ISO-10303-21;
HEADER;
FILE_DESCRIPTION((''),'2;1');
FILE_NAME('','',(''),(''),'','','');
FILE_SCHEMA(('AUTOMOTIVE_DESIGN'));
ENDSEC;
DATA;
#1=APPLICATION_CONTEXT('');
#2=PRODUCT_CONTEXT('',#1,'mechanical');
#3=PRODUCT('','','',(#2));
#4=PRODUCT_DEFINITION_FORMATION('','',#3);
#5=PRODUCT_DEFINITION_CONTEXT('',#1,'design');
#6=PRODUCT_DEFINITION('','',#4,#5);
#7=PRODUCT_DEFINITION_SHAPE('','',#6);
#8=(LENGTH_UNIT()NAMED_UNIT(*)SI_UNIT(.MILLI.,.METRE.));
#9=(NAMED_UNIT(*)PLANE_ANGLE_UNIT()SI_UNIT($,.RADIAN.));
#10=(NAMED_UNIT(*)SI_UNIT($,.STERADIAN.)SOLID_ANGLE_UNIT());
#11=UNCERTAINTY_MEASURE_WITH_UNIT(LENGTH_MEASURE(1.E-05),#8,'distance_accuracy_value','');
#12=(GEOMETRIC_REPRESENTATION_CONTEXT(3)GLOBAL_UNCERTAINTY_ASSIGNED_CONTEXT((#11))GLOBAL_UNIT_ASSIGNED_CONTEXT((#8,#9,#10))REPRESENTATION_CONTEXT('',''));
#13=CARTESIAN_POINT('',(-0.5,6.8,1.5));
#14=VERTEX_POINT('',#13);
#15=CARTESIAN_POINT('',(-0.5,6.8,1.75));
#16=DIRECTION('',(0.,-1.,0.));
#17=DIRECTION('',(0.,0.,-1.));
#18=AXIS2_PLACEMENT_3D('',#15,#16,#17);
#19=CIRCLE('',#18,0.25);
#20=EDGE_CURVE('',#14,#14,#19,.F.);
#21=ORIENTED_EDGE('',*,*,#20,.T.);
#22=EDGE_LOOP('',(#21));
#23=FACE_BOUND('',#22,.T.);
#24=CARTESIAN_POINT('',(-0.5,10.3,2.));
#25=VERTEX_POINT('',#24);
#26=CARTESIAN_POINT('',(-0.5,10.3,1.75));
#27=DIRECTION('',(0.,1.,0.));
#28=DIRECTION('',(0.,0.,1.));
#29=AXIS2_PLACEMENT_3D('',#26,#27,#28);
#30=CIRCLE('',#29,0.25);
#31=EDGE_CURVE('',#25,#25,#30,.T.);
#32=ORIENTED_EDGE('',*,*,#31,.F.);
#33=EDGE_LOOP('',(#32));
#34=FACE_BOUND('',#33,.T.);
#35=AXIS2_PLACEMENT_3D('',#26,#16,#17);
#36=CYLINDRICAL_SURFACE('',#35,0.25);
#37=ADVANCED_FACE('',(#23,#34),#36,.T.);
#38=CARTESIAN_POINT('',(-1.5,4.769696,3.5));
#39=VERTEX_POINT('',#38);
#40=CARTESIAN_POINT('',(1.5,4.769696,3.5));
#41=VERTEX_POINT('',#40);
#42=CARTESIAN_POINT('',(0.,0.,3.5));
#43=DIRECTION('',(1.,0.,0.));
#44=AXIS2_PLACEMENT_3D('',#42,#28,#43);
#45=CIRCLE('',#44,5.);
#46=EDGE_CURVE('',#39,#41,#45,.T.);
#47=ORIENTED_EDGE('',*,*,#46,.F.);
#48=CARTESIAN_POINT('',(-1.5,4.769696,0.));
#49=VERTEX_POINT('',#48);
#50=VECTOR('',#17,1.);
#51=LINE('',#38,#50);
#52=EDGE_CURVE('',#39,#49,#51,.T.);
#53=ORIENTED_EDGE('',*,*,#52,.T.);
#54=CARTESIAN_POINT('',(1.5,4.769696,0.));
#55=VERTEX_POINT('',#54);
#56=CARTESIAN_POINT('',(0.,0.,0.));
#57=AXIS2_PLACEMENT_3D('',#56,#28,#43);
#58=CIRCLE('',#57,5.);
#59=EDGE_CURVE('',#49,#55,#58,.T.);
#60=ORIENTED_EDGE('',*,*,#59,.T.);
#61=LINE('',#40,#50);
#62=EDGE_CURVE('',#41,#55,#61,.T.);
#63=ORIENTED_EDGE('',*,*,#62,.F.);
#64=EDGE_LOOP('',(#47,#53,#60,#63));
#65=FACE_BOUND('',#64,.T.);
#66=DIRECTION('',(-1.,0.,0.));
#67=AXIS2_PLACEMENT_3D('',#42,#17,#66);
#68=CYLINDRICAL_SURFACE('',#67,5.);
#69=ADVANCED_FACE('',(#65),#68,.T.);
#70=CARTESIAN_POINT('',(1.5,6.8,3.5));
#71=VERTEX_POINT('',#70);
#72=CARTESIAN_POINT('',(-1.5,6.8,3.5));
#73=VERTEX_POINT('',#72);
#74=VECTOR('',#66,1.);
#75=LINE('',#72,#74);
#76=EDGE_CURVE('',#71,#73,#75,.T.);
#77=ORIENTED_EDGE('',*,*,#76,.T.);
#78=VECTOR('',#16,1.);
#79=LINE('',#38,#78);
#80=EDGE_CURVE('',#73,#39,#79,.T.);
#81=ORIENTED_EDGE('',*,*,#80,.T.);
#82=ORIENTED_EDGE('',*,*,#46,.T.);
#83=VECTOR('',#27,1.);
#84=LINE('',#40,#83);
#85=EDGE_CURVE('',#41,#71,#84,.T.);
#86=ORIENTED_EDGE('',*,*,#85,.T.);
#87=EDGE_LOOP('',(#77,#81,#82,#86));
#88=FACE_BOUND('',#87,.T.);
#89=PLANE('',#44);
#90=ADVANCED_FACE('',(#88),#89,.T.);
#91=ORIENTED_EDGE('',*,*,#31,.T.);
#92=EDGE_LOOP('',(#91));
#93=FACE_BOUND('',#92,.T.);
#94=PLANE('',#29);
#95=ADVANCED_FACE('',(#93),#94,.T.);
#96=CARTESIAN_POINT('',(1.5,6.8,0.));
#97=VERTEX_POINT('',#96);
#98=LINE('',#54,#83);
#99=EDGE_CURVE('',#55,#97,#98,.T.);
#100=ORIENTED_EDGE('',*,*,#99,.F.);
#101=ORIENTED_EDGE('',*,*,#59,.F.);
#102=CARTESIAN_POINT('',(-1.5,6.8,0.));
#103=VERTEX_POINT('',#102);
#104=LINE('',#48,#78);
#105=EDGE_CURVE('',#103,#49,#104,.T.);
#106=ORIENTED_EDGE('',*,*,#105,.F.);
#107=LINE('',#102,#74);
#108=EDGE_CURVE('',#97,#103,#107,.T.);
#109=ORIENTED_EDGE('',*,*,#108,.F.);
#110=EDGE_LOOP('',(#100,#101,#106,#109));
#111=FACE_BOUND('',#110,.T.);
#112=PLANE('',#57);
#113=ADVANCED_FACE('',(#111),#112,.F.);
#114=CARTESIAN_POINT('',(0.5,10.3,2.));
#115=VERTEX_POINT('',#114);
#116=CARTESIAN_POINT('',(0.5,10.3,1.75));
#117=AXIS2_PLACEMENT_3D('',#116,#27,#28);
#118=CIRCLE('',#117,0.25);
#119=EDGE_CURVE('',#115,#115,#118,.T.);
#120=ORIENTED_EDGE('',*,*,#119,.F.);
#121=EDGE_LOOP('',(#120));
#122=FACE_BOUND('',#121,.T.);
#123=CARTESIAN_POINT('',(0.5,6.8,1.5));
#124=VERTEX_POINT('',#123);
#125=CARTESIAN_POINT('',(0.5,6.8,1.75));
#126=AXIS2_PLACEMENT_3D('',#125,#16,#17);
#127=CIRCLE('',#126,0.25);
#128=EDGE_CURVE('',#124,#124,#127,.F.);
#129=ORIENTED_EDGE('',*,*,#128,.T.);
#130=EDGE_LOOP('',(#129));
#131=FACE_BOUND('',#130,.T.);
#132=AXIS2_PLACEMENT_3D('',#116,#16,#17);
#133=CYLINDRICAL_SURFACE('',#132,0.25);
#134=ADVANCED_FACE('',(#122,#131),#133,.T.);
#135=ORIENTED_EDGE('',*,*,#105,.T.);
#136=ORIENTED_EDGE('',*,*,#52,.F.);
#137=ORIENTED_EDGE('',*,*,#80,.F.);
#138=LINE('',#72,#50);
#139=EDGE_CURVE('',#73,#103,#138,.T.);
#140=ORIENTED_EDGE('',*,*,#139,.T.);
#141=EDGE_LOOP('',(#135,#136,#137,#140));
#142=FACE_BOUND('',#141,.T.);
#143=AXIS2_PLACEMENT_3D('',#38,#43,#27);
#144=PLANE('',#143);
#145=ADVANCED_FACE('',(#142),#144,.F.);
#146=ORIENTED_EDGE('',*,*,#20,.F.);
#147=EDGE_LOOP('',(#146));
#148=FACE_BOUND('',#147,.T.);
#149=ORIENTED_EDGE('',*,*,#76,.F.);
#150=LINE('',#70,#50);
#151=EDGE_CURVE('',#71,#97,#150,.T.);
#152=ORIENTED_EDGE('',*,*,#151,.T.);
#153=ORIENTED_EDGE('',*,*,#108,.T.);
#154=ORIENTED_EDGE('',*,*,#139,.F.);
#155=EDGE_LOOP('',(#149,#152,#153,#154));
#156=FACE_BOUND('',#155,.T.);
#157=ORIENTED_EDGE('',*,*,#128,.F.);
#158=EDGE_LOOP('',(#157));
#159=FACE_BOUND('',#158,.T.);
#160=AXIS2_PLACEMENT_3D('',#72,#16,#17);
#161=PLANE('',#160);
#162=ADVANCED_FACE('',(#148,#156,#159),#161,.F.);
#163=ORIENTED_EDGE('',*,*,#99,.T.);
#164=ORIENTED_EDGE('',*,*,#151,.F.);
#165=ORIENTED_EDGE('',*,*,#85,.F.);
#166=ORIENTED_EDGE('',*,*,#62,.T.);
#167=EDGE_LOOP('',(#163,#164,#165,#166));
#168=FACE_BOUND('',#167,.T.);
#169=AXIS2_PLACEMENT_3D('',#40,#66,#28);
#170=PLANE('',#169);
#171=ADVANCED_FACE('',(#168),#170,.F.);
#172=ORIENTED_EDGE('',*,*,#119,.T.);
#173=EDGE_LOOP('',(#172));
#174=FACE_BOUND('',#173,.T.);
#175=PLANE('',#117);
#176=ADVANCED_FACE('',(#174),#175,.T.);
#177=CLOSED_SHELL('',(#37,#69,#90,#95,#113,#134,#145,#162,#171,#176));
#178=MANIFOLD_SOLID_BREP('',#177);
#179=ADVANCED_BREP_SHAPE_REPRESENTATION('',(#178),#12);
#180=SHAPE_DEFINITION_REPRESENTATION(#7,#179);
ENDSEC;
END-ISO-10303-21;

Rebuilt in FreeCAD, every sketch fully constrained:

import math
import FreeCAD as App
import Part
import Sketcher
Q = App.Units.Quantity

doc = App.newDocument("Part")
body = doc.addObject("PartDesign::Body", "Body")

sketch1 = doc.addObject("Sketcher::SketchObject", "Sketch")
body.addObject(sketch1)
sketch1.AttachmentSupport = (doc.XY_Plane, [""])
sketch1.MapMode = "FlatFace"
sketch1.addGeometry(Part.LineSegment(App.Vector(-1.5, 6.8, 0), App.Vector(-1.5, 4.8, 0)), False)
sketch1.addGeometry(Part.ArcOfCircle(Part.Circle(App.Vector(0, 0, 0), App.Vector(0, 0, 1), 5), math.radians(107), math.radians(433)), False)
sketch1.addGeometry(Part.LineSegment(App.Vector(1.5, 4.8, 0), App.Vector(1.5, 6.8, 0)), False)
sketch1.addGeometry(Part.LineSegment(App.Vector(1.5, 6.8, 0), App.Vector(-1.5, 6.8, 0)), False)
sketch1.addConstraint(Sketcher.Constraint("Coincident", 0, 2, 1, 1))
sketch1.addConstraint(Sketcher.Constraint("Coincident", 1, 2, 2, 1))
sketch1.addConstraint(Sketcher.Constraint("Coincident", 2, 2, 3, 1))
sketch1.addConstraint(Sketcher.Constraint("Coincident", 3, 2, 0, 1))
sketch1.addConstraint(Sketcher.Constraint("Vertical", 0))
sketch1.addConstraint(Sketcher.Constraint("Vertical", 2))
sketch1.addConstraint(Sketcher.Constraint("Horizontal", 3))
sketch1.addConstraint(Sketcher.Constraint("Coincident", 1, 3, -1, 1))
sketch1.addConstraint(Sketcher.Constraint("Horizontal", 0, 2, 1, 2))
sketch1.addConstraint(Sketcher.Constraint("Radius", 1, Q("5 mm")))
sketch1.addConstraint(Sketcher.Constraint("DistanceX", 3, 2, 3, 1, Q("3 mm")))
sketch1.addConstraint(Sketcher.Constraint("DistanceY", -1, 1, 2, 2, Q("6.8 mm")))
pad1 = doc.addObject("PartDesign::Pad", "Pad")
body.addObject(pad1)
pad1.Profile = sketch1
pad1.Length = 3.5

sketch2 = doc.addObject("Sketcher::SketchObject", "Sketch001")
body.addObject(sketch2)
sketch2.AttachmentSupport = (doc.XZ_Plane, [""])
sketch2.MapMode = "FlatFace"
sketch2.AttachmentOffset = App.Placement(App.Vector(0, 0, -6.8), App.Rotation())
sketch2.addGeometry(Part.Circle(App.Vector(-0.5, 1.75, 0), App.Vector(0, 0, 1), 0.25), False)
sketch2.addGeometry(Part.Circle(App.Vector(0.5, 1.75, 0), App.Vector(0, 0, 1), 0.25), False)
sketch2.addConstraint(Sketcher.Constraint("Equal", 0, 1))
sketch2.addConstraint(Sketcher.Constraint("Symmetric", 0, 3, 1, 3, -2))
sketch2.addConstraint(Sketcher.Constraint("Diameter", 0, Q("0.5 mm")))
sketch2.addConstraint(Sketcher.Constraint("DistanceX", 0, 3, 1, 3, Q("1 mm")))
sketch2.addConstraint(Sketcher.Constraint("DistanceY", -1, 1, 0, 3, Q("1.75 mm")))
pad2 = doc.addObject("PartDesign::Pad", "Pad001")
body.addObject(pad2)
pad2.Profile = sketch2
pad2.Length = 3.5
pad2.Reversed = True

doc.recompute()
